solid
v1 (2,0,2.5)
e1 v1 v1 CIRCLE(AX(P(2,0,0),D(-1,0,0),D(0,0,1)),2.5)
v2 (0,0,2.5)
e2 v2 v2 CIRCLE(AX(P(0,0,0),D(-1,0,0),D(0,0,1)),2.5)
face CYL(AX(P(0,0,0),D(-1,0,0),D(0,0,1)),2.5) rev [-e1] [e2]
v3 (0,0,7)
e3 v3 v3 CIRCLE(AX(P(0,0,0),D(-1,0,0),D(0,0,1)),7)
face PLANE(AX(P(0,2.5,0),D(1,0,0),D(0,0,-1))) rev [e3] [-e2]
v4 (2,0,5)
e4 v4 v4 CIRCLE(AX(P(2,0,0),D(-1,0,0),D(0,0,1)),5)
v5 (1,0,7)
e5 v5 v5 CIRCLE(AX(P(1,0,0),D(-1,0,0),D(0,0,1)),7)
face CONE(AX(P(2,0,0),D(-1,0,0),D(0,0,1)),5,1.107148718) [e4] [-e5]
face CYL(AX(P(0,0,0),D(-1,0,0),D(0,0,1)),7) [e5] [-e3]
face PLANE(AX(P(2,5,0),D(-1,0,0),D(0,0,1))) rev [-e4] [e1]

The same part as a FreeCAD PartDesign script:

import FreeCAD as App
import Part
import Sketcher

V = App.Vector
Q = App.Units.Quantity

doc = App.newDocument("Part")
body = doc.addObject("PartDesign::Body", "Body")

sketch1 = body.newObject("Sketcher::SketchObject", "Sketch")
sketch1.AttachmentSupport = (doc.getObject("XY_Plane"), [""])
sketch1.MapMode = "FlatFace"
sketch1.addGeometry([
    Part.LineSegment(V(0, 7, 0), V(0, 2.5, 0)),
    Part.LineSegment(V(0, 2.5, 0), V(2, 2.5, 0)),
    Part.LineSegment(V(2, 2.5, 0), V(2, 5, 0)),
    Part.LineSegment(V(2, 5, 0), V(1, 7, 0)),
    Part.LineSegment(V(1, 7, 0), V(0, 7, 0)),
], False)
sketch1.addConstraint([
    Sketcher.Constraint("Coincident", 0, 2, 1, 1),
    Sketcher.Constraint("Coincident", 1, 2, 2, 1),
    Sketcher.Constraint("Coincident", 2, 2, 3, 1),
    Sketcher.Constraint("Coincident", 3, 2, 4, 1),
    Sketcher.Constraint("Coincident", 4, 2, 0, 1),
    Sketcher.Constraint("Vertical", 0),
    Sketcher.Constraint("Horizontal", 1),
    Sketcher.Constraint("Vertical", 2),
    Sketcher.Constraint("Horizontal", 4),
    Sketcher.Constraint("PointOnObject", 0, 2, -2),
    Sketcher.Constraint("DistanceX", 1, 1, 1, 2, Q("2 mm")),
    Sketcher.Constraint("DistanceX", 4, 2, 4, 1, Q("1 mm")),
    Sketcher.Constraint("DistanceY", 0, 2, 0, 1, Q("4.5 mm")),
    Sketcher.Constraint("DistanceY", 2, 1, 2, 2, Q("2.5 mm")),
    Sketcher.Constraint("DistanceY", -1, 1, 2, 2, Q("5 mm")),
])
revolution = body.newObject("PartDesign::Revolution", "Revolution")
revolution.Profile = sketch1
revolution.ReferenceAxis = (sketch1, ["H_Axis"])
revolution.Angle = 360

doc.recompute()
